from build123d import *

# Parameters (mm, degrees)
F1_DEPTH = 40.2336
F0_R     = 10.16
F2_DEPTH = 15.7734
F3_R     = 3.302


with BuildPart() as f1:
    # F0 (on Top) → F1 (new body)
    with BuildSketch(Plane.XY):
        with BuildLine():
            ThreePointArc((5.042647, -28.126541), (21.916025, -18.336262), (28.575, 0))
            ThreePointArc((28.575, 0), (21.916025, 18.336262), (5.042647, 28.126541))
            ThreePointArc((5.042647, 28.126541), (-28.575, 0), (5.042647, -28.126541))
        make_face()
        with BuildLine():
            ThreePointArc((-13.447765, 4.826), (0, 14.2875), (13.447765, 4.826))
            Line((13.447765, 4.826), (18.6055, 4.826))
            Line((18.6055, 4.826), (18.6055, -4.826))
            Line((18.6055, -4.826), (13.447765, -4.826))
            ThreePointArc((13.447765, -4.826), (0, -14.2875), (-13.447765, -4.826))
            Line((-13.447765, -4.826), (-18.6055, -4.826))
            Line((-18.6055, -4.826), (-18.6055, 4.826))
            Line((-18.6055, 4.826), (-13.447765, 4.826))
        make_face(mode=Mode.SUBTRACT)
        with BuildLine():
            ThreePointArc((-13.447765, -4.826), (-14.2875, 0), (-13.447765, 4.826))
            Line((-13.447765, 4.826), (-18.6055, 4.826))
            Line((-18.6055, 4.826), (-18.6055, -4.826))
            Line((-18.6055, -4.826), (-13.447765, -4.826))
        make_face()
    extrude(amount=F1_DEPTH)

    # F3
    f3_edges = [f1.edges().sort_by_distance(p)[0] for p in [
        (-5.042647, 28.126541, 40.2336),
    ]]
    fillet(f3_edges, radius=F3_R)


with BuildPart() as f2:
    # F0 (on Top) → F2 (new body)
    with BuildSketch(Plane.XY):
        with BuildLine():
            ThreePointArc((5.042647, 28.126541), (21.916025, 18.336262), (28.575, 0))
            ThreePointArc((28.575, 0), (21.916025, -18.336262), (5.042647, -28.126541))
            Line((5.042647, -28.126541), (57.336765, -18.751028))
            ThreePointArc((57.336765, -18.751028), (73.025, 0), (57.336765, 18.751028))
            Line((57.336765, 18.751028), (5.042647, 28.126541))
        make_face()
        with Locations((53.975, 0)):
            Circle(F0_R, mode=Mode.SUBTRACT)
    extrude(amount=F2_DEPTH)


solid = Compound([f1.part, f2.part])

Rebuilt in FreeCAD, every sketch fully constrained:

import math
import FreeCAD as App
import Part
import Sketcher
from FreeCAD import Vector
Q = App.Units.Quantity


def edges_at(feature, points):
    """Names of the edges that pass closest to the given points."""
    edges = feature.Shape.Edges
    near = lambda p: min(range(len(edges)), key=lambda i: edges[i].distToShape(Part.Vertex(*p))[0])
    return sorted({f"Edge{near(p) + 1}" for p in points})

doc = App.newDocument("Part")
body = doc.addObject("PartDesign::Body", "Body")

sketch1 = doc.addObject("Sketcher::SketchObject", "Sketch")
body.addObject(sketch1)
sketch1.AttachmentSupport = (doc.XY_Plane, [""])
sketch1.MapMode = "FlatFace"
sketch1.addGeometry([
    Part.ArcOfCircle(Part.Circle(Vector(0, 0, 0), Vector(0, 0, 1), 29), math.radians(-80), math.radians(0)),
    Part.ArcOfCircle(Part.Circle(Vector(0, 0, 0), Vector(0, 0, 1), 29), math.radians(0), math.radians(80)),
    Part.ArcOfCircle(Part.Circle(Vector(0, 0, 0), Vector(0, 0, 1), 29), math.radians(80), math.radians(280)),
    Part.ArcOfCircle(Part.Circle(Vector(0, 0, 0), Vector(0, 0, 1), 14), math.radians(-160), math.radians(-20)),
    Part.ArcOfCircle(Part.Circle(Vector(0, 0, 0), Vector(0, 0, 1), 14), math.radians(160), math.radians(200)),
    Part.ArcOfCircle(Part.Circle(Vector(0, 0, 0), Vector(0, 0, 1), 14), math.radians(20), math.radians(160)),
    Part.LineSegment(Vector(13, 5, 0), Vector(19, 5, 0)),
    Part.LineSegment(Vector(19, 5, 0), Vector(19, -5, 0)),
    Part.LineSegment(Vector(19, -5, 0), Vector(13, -5, 0)),
], False)
sketch1.addConstraint([
    Sketcher.Constraint("Tangent", 0, 2, 1, 1),
    Sketcher.Constraint("Tangent", 1, 2, 2, 1),
    Sketcher.Constraint("Tangent", 2, 2, 0, 1),
    Sketcher.Constraint("Tangent", 3, 1, 4, 2),
    Sketcher.Constraint("Tangent", 4, 1, 5, 2),
    Sketcher.Constraint("Coincident", 5, 1, 6, 1),
    Sketcher.Constraint("Coincident", 6, 2, 7, 1),
    Sketcher.Constraint("Coincident", 7, 2, 8, 1),
    Sketcher.Constraint("Coincident", 8, 2, 3, 2),
    Sketcher.Constraint("Horizontal", 6),
    Sketcher.Constraint("Vertical", 7),
    Sketcher.Constraint("Horizontal", 8),
    Sketcher.Constraint("Coincident", 0, 3, -1, 1),
    Sketcher.Constraint("Coincident", 3, 3, -1, 1),
    Sketcher.Constraint("Coincident", 5, 3, -1, 1),
    Sketcher.Constraint("PointOnObject", 0, 2, -1),
    Sketcher.Constraint("Horizontal", 4, 1, 5, 1),
    Sketcher.Constraint("Horizontal", 3, 1, 7, 2),
    Sketcher.Constraint("Vertical", 1, 2, 2, 2),
    Sketcher.Constraint("Vertical", 3, 1, 4, 1),
    Sketcher.Constraint("Radius", 0, Q("1.1249999 in")),
    Sketcher.Constraint("Radius", 3, Q("0.5625 in")),
    Sketcher.Constraint("DistanceY", 7, 2, 7, 1, Q("0.38 in")),
    Sketcher.Constraint("DistanceX", -1, 1, 6, 2, Q("0.7325 in")),
    Sketcher.Constraint("DistanceY", -1, 1, 1, 2, Q("28.126541 mm")),
])
pad1 = doc.addObject("PartDesign::Pad", "Pad")
body.addObject(pad1)
pad1.Profile = sketch1
pad1.Length = Q("1.584 in")
doc.recompute()

fillet = doc.addObject("PartDesign::Fillet", "Fillet")
body.addObject(fillet)
fillet.Base = (pad1, edges_at(pad1, [(-28.575, 0, 40.234)]))
fillet.Radius = Q("0.13 in")
body2 = doc.addObject("PartDesign::Body", "Body001")

sketch2 = doc.addObject("Sketcher::SketchObject", "Sketch001")
body2.addObject(sketch2)
sketch2.AttachmentSupport = (doc.getObject("XY_Plane001"), [""])
sketch2.MapMode = "FlatFace"
sketch2.addGeometry([
    Part.ArcOfCircle(Part.Circle(Vector(0, 0, 0), Vector(0, 0, 1), 29), math.radians(0), math.radians(80)),
    Part.ArcOfCircle(Part.Circle(Vector(0, 0, 0), Vector(0, 0, 1), 29), math.radians(-80), math.radians(0)),
    Part.LineSegment(Vector(5, -28, 0), Vector(57, -19, 0)),
    Part.ArcOfCircle(Part.Circle(Vector(54, 0, 0), Vector(0, 0, 1), 19), math.radians(-80), math.radians(80)),
    Part.LineSegment(Vector(57, 19, 0), Vector(5, 28, 0)),
    Part.Circle(Vector(54, 0, 0), Vector(0, 0, 1), 10),
], False)
sketch2.addConstraint([
    Sketcher.Constraint("Tangent", 0, 1, 1, 2),
    Sketcher.Constraint("Tangent", 1, 1, 2, 1),
    Sketcher.Constraint("Tangent", 2, 2, 3, 1),
    Sketcher.Constraint("Tangent", 3, 2, 4, 1),
    Sketcher.Constraint("Tangent", 4, 2, 0, 2),
    Sketcher.Constraint("Coincident", 0, 3, -1, 1),
    Sketcher.Constraint("Coincident", 5, 3, 3, 3),
    Sketcher.Constraint("Equal", 0, 1),
    Sketcher.Constraint("PointOnObject", 3, 3, -1),
    Sketcher.Constraint("PointOnObject", 0, 1, -1),
    Sketcher.Constraint("Diameter", 5, Q("0.8 in")),
    Sketcher.Constraint("Radius", 3, Q("0.75 in")),
    Sketcher.Constraint("Radius", 0, Q("1.1249999 in")),
    Sketcher.Constraint("DistanceX", 0, 1, 3, 3, Q("1 in")),
])
pad2 = doc.addObject("PartDesign::Pad", "Pad001")
body2.addObject(pad2)
pad2.Profile = sketch2
pad2.Length = Q("0.621 in")

doc.recompute()
